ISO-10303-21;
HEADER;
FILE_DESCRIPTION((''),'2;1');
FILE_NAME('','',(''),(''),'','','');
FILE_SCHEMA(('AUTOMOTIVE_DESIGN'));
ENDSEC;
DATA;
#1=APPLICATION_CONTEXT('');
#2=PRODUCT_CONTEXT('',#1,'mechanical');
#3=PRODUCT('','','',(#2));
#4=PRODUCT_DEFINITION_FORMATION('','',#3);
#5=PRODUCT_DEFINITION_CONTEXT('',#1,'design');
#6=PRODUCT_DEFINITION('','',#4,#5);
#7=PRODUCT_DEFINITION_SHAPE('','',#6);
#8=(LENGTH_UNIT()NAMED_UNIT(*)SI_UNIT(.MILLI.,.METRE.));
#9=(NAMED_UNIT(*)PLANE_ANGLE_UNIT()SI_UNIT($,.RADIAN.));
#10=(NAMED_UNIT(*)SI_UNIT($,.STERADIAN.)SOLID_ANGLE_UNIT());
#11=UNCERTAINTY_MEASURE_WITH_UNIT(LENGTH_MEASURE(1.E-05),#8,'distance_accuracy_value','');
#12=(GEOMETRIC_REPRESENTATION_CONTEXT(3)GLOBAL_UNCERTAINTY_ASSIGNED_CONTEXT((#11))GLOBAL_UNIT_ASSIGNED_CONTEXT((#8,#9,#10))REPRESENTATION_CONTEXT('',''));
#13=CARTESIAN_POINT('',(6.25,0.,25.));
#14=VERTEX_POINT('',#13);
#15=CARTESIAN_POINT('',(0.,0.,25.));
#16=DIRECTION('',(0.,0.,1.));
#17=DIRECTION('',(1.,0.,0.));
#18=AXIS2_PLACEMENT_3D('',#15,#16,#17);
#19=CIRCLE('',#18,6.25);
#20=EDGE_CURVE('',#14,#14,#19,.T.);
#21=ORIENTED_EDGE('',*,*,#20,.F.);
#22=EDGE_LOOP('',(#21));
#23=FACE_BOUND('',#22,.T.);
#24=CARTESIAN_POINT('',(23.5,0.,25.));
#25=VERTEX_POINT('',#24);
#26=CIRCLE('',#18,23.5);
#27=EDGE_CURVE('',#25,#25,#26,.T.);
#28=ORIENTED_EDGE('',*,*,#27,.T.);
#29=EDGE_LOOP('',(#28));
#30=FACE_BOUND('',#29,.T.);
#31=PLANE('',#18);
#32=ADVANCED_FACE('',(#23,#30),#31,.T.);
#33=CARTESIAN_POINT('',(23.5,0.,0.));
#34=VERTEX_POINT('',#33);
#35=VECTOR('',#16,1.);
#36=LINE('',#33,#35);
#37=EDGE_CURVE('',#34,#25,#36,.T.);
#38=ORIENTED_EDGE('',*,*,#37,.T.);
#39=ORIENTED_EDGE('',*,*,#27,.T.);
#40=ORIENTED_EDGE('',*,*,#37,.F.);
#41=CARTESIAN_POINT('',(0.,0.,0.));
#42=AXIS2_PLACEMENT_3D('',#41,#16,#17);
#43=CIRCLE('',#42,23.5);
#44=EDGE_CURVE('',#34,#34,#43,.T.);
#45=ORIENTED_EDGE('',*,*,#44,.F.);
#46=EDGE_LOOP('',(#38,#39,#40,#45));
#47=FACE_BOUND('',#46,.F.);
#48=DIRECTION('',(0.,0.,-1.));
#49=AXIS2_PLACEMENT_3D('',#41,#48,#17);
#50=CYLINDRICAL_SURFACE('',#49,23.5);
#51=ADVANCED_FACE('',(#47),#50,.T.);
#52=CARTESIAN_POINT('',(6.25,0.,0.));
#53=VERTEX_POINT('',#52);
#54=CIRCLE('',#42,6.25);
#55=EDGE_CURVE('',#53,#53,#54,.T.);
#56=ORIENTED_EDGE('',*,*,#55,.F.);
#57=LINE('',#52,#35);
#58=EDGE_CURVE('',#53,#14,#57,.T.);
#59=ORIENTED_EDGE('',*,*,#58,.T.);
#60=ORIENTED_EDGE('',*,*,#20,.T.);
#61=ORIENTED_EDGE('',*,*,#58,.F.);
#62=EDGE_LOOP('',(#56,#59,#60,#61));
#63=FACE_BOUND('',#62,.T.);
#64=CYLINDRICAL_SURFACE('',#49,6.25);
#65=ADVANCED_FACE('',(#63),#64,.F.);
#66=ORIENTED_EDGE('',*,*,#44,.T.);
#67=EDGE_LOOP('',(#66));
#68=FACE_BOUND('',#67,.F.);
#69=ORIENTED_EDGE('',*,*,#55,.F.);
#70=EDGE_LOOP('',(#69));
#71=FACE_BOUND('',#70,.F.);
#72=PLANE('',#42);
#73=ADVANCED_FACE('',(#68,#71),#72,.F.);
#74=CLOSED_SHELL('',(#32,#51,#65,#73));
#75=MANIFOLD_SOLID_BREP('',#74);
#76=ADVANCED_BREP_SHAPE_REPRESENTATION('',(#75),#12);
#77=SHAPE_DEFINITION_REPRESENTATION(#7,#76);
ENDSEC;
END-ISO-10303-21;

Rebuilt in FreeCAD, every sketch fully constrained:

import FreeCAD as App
import Part
import Sketcher

doc = App.newDocument("Part")
body = doc.addObject("PartDesign::Body", "Body")

sketch1 = doc.addObject("Sketcher::SketchObject", "Sketch")
body.addObject(sketch1)
sketch1.AttachmentSupport = (doc.XY_Plane, [""])
sketch1.MapMode = "FlatFace"
sketch1.addGeometry(Part.Circle(App.Vector(0, 0, 0), App.Vector(0, 0, 1), 24), False)
sketch1.addGeometry(Part.Circle(App.Vector(0, 0, 0), App.Vector(0, 0, 1), 6), False)
sketch1.addConstraint(Sketcher.Constraint("Coincident", 0, 3, -1, 1))
sketch1.addConstraint(Sketcher.Constraint("Coincident", 1, 3, -1, 1))
sketch1.addConstraint(Sketcher.Constraint("Diameter", 0, 47.0))
sketch1.addConstraint(Sketcher.Constraint("Diameter", 1, 12.5))
pad1 = doc.addObject("PartDesign::Pad", "Pad")
body.addObject(pad1)
pad1.Profile = sketch1
pad1.Length = 25

doc.recompute()
